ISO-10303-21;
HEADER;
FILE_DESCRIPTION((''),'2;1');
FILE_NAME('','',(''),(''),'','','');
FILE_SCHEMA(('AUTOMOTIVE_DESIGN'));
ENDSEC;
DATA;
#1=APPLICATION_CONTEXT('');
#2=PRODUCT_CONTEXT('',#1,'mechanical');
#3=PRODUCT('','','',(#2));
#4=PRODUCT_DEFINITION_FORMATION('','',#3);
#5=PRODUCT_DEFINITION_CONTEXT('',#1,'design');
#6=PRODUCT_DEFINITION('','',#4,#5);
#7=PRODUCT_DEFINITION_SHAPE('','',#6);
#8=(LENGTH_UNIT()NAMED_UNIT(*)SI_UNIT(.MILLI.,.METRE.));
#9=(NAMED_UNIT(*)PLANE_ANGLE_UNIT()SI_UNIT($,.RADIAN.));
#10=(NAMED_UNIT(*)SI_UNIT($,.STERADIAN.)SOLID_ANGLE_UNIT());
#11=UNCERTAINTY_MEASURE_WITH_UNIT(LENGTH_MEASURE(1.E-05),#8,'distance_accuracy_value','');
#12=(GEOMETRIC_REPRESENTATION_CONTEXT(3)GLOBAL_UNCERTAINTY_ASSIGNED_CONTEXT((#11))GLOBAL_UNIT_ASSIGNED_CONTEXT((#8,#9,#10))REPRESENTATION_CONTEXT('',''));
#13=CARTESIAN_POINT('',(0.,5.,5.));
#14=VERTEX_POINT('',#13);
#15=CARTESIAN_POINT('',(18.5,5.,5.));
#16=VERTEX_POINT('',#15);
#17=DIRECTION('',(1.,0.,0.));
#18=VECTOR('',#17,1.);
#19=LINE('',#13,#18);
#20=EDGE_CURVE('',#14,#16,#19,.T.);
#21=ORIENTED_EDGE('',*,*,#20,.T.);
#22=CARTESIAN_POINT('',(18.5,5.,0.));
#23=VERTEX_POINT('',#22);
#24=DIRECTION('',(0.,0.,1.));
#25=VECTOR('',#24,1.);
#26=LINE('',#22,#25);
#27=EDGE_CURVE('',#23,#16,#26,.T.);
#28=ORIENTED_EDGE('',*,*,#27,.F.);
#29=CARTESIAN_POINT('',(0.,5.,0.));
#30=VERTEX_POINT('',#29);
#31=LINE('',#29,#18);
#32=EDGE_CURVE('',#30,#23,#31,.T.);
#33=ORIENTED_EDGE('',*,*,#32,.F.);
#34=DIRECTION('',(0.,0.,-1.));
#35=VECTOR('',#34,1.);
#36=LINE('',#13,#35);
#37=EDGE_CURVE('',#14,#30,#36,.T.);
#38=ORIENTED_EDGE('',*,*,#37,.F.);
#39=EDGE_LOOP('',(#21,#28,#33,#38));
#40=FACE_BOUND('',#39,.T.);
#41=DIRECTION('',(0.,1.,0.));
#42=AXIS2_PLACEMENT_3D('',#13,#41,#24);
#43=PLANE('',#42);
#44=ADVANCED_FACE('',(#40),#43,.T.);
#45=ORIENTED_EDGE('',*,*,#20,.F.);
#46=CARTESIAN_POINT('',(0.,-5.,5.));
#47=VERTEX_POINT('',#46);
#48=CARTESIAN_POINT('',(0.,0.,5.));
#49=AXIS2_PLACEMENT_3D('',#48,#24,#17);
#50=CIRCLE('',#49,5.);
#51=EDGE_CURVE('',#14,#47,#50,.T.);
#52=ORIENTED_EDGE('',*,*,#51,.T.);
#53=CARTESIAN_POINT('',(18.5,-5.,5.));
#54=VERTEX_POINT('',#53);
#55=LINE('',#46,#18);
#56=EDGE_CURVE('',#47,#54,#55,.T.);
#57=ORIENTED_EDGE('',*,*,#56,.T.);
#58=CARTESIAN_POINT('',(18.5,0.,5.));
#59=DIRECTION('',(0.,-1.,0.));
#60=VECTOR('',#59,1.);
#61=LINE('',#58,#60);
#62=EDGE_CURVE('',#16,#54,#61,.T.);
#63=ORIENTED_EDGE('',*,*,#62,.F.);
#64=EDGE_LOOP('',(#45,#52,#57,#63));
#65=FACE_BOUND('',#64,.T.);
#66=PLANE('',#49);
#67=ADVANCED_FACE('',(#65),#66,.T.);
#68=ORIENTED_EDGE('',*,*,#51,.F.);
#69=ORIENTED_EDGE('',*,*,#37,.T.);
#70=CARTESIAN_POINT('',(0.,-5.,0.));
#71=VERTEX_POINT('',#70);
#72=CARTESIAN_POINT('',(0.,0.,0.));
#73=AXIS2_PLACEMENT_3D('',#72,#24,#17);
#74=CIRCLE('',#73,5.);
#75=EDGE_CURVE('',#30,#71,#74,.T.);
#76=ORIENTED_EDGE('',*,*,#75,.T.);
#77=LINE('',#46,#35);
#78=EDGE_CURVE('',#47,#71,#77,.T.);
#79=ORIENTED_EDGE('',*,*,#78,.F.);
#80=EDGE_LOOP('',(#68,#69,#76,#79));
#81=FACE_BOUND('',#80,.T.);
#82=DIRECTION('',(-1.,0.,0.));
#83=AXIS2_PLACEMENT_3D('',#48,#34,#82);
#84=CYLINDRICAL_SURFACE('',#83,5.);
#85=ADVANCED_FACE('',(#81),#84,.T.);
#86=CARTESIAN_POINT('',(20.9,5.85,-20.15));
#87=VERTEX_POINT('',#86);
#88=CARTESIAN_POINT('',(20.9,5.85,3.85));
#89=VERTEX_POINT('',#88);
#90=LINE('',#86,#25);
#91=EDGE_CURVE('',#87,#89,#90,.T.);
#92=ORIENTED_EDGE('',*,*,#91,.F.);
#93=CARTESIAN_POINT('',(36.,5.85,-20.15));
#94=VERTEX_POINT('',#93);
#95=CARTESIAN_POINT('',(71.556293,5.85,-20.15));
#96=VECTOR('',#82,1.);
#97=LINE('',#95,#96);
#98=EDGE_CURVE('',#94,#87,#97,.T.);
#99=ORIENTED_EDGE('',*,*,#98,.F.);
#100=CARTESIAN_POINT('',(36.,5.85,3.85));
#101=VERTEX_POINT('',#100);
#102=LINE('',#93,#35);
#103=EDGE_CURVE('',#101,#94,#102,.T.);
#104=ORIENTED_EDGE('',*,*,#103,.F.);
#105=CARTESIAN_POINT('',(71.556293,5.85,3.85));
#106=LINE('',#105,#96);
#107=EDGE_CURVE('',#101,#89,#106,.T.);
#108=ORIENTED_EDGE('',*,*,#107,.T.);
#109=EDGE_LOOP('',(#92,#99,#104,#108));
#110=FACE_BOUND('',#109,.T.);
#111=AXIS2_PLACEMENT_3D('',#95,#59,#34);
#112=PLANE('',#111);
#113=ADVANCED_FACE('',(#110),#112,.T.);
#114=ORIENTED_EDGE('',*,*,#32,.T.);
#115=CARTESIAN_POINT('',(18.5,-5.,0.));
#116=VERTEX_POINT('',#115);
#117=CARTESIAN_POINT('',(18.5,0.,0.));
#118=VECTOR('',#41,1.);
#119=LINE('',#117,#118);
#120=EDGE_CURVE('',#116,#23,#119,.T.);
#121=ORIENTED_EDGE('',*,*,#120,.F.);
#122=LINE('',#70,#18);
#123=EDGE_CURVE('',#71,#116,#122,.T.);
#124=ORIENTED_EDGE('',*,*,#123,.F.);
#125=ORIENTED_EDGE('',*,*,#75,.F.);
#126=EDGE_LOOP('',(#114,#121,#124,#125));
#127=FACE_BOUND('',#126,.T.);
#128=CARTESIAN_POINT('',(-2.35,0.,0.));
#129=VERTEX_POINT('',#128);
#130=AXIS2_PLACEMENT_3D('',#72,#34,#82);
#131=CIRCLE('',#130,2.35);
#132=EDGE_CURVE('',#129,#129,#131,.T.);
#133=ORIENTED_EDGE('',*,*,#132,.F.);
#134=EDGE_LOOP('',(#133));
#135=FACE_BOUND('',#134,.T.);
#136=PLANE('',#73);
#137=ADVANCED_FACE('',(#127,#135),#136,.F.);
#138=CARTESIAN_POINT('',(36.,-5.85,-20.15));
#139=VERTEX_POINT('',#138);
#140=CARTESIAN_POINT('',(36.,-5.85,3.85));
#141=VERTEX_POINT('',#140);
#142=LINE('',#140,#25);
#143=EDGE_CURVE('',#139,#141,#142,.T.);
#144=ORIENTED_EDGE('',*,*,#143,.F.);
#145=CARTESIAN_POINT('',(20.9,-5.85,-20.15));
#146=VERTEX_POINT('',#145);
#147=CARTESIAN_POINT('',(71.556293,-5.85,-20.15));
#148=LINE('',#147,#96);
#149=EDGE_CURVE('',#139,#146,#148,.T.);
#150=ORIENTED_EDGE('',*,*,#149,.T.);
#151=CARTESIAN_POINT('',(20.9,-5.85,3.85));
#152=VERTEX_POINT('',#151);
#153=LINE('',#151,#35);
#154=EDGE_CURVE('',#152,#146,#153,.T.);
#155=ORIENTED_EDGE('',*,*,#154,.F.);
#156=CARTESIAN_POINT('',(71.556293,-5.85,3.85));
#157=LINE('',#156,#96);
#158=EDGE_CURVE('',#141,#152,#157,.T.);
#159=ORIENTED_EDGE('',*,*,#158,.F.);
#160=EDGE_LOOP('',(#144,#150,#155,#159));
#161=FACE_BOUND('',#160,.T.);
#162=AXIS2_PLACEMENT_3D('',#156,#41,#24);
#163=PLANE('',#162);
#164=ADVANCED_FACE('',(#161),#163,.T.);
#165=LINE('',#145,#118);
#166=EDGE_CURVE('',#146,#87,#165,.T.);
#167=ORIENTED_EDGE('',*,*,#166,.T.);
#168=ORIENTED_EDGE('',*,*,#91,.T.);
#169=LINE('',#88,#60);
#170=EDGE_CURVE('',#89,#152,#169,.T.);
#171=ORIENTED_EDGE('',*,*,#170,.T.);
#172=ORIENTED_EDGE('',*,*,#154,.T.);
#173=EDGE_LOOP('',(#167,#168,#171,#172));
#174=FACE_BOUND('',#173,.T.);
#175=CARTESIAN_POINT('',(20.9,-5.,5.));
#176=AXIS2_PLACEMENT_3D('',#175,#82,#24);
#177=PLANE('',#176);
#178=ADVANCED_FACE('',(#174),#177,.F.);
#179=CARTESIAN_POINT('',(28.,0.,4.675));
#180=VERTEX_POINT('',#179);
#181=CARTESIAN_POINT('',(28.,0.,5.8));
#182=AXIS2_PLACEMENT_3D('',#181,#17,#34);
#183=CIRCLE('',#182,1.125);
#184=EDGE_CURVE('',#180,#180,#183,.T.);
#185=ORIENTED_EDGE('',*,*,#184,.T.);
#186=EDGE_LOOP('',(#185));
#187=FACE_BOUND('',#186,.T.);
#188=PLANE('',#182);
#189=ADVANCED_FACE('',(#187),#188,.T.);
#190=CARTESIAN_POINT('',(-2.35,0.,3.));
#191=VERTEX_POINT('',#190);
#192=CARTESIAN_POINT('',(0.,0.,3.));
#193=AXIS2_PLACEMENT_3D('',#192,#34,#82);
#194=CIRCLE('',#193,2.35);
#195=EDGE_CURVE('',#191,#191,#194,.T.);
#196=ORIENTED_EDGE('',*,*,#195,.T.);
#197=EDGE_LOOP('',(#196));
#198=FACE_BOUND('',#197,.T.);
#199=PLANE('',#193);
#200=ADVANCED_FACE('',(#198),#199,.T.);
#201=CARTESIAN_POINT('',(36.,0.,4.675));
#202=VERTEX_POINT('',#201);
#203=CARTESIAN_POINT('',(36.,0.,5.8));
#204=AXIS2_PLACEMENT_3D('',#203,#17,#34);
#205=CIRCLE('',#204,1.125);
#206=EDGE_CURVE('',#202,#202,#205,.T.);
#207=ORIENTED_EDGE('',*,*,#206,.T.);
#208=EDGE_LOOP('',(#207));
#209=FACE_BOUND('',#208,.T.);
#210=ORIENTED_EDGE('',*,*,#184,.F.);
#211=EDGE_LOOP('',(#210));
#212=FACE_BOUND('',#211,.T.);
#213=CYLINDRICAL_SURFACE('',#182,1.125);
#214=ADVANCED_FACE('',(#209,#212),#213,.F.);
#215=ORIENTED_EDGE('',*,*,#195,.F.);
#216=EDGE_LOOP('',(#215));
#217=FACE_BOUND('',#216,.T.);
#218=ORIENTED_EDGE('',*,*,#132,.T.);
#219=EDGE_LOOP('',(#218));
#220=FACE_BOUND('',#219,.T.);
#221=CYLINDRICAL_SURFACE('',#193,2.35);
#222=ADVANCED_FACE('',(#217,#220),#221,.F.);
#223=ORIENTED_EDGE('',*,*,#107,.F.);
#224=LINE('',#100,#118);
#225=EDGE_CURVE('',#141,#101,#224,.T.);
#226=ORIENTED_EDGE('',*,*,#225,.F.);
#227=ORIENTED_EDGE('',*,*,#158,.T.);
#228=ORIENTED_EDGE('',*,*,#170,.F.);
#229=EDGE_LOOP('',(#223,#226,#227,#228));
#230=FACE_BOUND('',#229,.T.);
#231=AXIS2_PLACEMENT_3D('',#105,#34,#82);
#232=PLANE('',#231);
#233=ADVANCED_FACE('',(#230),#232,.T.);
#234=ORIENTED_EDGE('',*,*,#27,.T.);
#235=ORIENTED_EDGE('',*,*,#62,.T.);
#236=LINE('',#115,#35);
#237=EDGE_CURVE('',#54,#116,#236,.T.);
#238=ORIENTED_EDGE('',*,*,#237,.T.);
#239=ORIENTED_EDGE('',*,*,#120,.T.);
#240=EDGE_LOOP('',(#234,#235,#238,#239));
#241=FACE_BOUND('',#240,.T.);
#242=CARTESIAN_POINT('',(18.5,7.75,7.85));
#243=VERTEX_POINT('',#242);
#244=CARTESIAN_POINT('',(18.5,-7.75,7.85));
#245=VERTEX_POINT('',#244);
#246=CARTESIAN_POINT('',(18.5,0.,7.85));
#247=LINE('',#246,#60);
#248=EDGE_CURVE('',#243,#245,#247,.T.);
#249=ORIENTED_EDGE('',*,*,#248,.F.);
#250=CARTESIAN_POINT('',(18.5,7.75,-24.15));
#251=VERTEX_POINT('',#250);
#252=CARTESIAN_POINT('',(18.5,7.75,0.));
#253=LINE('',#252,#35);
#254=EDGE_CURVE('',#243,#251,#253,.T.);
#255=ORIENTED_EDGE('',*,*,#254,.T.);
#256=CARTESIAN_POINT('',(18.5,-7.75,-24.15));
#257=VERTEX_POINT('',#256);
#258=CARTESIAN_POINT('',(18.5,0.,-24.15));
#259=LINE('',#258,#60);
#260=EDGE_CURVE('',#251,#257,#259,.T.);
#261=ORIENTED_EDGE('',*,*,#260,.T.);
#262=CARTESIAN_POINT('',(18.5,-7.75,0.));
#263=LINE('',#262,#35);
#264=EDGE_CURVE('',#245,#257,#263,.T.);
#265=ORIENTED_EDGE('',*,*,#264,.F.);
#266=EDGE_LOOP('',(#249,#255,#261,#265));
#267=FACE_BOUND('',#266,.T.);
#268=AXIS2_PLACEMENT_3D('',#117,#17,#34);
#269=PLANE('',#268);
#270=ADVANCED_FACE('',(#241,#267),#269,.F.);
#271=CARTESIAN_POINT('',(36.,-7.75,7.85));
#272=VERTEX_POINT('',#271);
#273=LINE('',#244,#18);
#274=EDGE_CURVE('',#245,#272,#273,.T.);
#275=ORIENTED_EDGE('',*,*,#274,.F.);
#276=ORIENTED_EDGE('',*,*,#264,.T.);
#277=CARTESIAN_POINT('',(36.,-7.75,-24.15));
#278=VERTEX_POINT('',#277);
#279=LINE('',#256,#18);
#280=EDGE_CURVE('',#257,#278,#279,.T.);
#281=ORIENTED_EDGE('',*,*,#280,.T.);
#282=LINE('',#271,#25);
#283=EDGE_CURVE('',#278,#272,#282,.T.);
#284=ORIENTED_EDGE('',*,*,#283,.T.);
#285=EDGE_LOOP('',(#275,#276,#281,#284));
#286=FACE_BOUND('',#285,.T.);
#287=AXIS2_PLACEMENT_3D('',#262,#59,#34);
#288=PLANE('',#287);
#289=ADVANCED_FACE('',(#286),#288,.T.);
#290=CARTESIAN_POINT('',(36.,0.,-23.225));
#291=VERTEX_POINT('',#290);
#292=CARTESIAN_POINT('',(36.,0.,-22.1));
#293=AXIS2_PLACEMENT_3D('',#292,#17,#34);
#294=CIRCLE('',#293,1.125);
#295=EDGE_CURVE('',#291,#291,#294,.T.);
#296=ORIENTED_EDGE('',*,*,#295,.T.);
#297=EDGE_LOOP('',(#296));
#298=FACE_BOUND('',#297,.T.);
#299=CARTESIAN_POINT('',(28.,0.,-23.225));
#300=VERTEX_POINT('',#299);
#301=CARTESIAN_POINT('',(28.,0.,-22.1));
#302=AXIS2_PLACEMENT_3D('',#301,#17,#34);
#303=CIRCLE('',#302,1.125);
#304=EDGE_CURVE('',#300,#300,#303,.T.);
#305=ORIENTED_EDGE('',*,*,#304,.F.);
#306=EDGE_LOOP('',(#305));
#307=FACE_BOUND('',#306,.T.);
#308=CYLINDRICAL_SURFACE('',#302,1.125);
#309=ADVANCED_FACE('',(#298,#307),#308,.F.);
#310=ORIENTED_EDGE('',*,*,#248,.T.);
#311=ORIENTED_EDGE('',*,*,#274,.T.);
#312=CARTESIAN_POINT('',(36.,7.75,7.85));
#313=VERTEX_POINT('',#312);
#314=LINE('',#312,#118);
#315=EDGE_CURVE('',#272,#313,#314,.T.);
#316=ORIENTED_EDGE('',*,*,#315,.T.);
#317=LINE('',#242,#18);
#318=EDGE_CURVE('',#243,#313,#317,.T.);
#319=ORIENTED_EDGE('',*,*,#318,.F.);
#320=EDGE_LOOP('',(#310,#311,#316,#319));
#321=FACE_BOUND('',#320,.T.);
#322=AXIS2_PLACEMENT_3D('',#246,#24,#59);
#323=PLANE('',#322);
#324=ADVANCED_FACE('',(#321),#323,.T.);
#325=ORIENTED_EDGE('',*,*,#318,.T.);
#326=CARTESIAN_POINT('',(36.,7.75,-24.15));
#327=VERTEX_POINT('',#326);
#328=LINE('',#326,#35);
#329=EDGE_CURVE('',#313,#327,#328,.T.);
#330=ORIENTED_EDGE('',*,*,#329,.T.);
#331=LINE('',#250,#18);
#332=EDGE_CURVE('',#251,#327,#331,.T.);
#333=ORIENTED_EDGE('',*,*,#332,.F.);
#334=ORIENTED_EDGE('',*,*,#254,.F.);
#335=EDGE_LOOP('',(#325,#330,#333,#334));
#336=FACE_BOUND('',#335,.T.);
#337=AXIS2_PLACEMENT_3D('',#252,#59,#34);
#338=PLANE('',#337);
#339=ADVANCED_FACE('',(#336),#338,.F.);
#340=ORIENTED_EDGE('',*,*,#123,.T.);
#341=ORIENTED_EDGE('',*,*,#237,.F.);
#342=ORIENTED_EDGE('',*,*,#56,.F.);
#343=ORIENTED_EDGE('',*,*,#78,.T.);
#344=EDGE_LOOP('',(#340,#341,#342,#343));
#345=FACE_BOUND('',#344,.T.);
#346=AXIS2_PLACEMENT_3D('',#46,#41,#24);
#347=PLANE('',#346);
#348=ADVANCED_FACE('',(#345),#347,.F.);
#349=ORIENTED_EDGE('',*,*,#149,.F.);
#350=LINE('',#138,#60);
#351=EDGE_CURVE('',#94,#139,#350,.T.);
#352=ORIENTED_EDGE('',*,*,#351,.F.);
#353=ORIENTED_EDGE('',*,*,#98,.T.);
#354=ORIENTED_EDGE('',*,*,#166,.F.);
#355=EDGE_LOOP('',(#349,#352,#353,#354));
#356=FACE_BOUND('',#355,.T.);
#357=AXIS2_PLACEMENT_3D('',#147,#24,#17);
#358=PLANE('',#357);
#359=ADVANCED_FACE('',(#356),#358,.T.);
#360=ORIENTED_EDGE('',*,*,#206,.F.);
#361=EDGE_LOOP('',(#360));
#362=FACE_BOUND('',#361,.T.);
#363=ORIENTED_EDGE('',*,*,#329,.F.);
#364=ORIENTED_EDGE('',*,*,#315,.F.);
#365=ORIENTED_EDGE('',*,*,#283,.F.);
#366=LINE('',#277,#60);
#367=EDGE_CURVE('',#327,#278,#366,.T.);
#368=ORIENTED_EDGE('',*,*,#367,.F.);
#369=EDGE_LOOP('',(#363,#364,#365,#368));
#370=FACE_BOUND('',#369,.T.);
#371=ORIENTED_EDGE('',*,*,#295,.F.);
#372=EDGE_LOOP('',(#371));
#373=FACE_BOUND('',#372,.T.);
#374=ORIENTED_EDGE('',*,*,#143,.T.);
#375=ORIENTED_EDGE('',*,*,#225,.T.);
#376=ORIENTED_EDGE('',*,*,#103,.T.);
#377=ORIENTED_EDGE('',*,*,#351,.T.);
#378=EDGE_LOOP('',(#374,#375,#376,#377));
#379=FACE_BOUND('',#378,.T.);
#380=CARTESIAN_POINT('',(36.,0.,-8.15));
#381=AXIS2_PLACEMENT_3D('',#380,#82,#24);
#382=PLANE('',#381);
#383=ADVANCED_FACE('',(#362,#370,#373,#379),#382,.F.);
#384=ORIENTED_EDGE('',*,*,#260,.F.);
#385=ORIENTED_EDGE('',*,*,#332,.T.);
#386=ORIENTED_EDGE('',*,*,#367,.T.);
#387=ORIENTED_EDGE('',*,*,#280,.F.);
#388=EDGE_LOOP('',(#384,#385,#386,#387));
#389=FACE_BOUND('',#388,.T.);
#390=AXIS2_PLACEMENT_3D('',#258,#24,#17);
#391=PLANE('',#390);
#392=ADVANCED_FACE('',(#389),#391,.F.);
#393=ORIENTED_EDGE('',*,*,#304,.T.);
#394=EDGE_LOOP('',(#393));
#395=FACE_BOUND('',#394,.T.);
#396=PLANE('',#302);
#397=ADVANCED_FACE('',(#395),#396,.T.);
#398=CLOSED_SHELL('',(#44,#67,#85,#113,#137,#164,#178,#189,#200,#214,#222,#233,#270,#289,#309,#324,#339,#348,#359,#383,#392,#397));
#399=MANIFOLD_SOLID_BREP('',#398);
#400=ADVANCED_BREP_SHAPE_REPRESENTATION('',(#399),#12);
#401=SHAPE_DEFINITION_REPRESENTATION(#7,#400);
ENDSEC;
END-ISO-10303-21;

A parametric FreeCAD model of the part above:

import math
import FreeCAD as App
import Part
import Sketcher
from FreeCAD import Vector


def add_polygon(sketch, points):
    """Adds a closed chain of lines whose ends are joined by coincident constraints."""
    first, n = sketch.GeometryCount, len(points)
    for a, b in zip(points, points[1:] + points[:1]):
        sketch.addGeometry(Part.LineSegment(App.Vector(*a, 0), App.Vector(*b, 0)), False)
    for i in range(n):
        sketch.addConstraint(Sketcher.Constraint("Coincident", first + i, 2, first + (i + 1) % n, 1))

doc = App.newDocument("Part")
body = doc.addObject("PartDesign::Body", "Body")

# Sketch on XY plane
sketch1 = body.newObject("Sketcher::SketchObject", "Sketch")
sketch1.AttachmentSupport = (doc.getObject("XY_Plane"), [""])
sketch1.MapMode = "FlatFace"
sketch1.addGeometry([
    Part.LineSegment(Vector(21, 5, 0), Vector(0, 5, 0)),
    Part.ArcOfCircle(Part.Circle(Vector(0, 0, 0), Vector(0, 0, 1), 5), math.radians(90), math.radians(270)),
    Part.LineSegment(Vector(0, -5, 0), Vector(21, -5, 0)),
    Part.LineSegment(Vector(21, -5, 0), Vector(21, 5, 0)),
], False)
sketch1.addConstraint([
    Sketcher.Constraint("Tangent", 0, 2, 1, 1),
    Sketcher.Constraint("Tangent", 1, 2, 2, 1),
    Sketcher.Constraint("Coincident", 2, 2, 3, 1),
    Sketcher.Constraint("Coincident", 3, 2, 0, 1),
    Sketcher.Constraint("Horizontal", 0),
    Sketcher.Constraint("Horizontal", 2),
    Sketcher.Constraint("Vertical", 3),
    Sketcher.Constraint("Coincident", 1, 3, -1, 1),
    Sketcher.Constraint("Radius", 1, 5.0),
    Sketcher.Constraint("DistanceX", 0, 2, 0, 1, 20.9),
])
pad1 = body.newObject("PartDesign::Pad", "Pad")
pad1.Profile = sketch1
pad1.Length = 5

# Sketch on XY plane
sketch2 = body.newObject("Sketcher::SketchObject", "Sketch001")
sketch2.AttachmentSupport = (doc.getObject("XY_Plane"), [""])
sketch2.MapMode = "FlatFace"
sketch2.addGeometry(Part.Circle(Vector(0, 0, 0), Vector(0, 0, 1), 2.4), False)
sketch2.addConstraint([
    Sketcher.Constraint("Coincident", 0, 3, -1, 1),
    Sketcher.Constraint("Diameter", 0, 4.7),
])
pocket1 = body.newObject("PartDesign::Pocket", "Pocket")
pocket1.Profile = sketch2
pocket1.Length = 3
pocket1.Reversed = True

# Sketch on YZ plane
sketch3 = body.newObject("Sketcher::SketchObject", "Sketch002")
sketch3.AttachmentSupport = (doc.getObject("YZ_Plane"), [""])
sketch3.MapMode = "FlatFace"
sketch3.AttachmentOffset = App.Placement(Vector(0, 0, 20.9), App.Rotation())
add_polygon(sketch3, [(8, 8), (-8, 8), (-8, -24), (8, -24)])  # lines 0-3
add_polygon(sketch3, [(-5, 0), (-5, 5), (5, 5), (5, 0)])  # lines 4-7
sketch3.addConstraint([
    Sketcher.Constraint("Horizontal", 0),
    Sketcher.Constraint("Vertical", 1),
    Sketcher.Constraint("Horizontal", 2),
    Sketcher.Constraint("Vertical", 3),
    Sketcher.Constraint("Vertical", 4),
    Sketcher.Constraint("Horizontal", 5),
    Sketcher.Constraint("Vertical", 6),
    Sketcher.Constraint("Horizontal", 7),
    Sketcher.Constraint("Symmetric", 6, 2, 7, 2, -1, 1),
    Sketcher.Constraint("DistanceX", 5, 1, 5, 2, 10.0),
    Sketcher.Constraint("DistanceY", 1, 2, 1, 1, 32.0),
    Sketcher.Constraint("DistanceY", 4, 1, 4, 2, 5.0),
    Sketcher.Constraint("DistanceX", 0, 2, 0, 1, 15.5),
    Sketcher.Constraint("DistanceX", 0, 2, -1, 1, 7.75),
    Sketcher.Constraint("DistanceY", -1, 1, 0, 2, 7.85),
])
pad2 = body.newObject("PartDesign::Pad", "Pad001")
pad2.Profile = sketch3
pad2.Length = 2.4
pad2.Reversed = True

# Sketch on YZ plane
sketch4 = body.newObject("Sketcher::SketchObject", "Sketch003")
sketch4.AttachmentSupport = (doc.getObject("YZ_Plane"), [""])
sketch4.MapMode = "FlatFace"
sketch4.AttachmentOffset = App.Placement(Vector(0, 0, 20.9), App.Rotation())
add_polygon(sketch4, [(8, 8), (-8, 8), (-8, -24), (8, -24)])  # lines 0-3
add_polygon(sketch4, [(-6, -20), (-6, 4), (6, 4), (6, -20)])  # lines 4-7
sketch4.addConstraint([
    Sketcher.Constraint("Horizontal", 0),
    Sketcher.Constraint("Vertical", 1),
    Sketcher.Constraint("Horizontal", 2),
    Sketcher.Constraint("Vertical", 3),
    Sketcher.Constraint("Vertical", 4),
    Sketcher.Constraint("Horizontal", 5),
    Sketcher.Constraint("Vertical", 6),
    Sketcher.Constraint("Horizontal", 7),
    Sketcher.Constraint("DistanceY", 1, 2, 1, 1, 32.0),
    Sketcher.Constraint("DistanceY", 4, 1, 4, 2, 24.0),
    Sketcher.Constraint("DistanceX", 0, 2, 0, 1, 15.5),
    Sketcher.Constraint("DistanceX", 5, 1, 5, 2, 11.7),
    Sketcher.Constraint("DistanceY", 4, 2, 0, 2, 4.0),
    Sketcher.Constraint("DistanceX", 0, 2, 4, 2, 1.9),
    Sketcher.Constraint("DistanceX", 0, 2, -1, 1, 7.75),
    Sketcher.Constraint("DistanceY", -1, 1, 0, 2, 7.85),
])
pad3 = body.newObject("PartDesign::Pad", "Pad002")
pad3.Profile = sketch4
pad3.Length = 15.1

# Sketch on YZ plane
sketch5 = body.newObject("Sketcher::SketchObject", "Sketch004")
sketch5.AttachmentSupport = (doc.getObject("YZ_Plane"), [""])
sketch5.MapMode = "FlatFace"
sketch5.AttachmentOffset = App.Placement(Vector(0, 0, 36), App.Rotation())
sketch5.addGeometry([
    Part.Circle(Vector(0, 5.8, 0), Vector(0, 0, 1), 1.1),
    Part.Circle(Vector(0, -22.1, 0), Vector(0, 0, 1), 1.1),
], False)
sketch5.addConstraint([
    Sketcher.Constraint("Equal", 0, 1),
    Sketcher.Constraint("PointOnObject", 0, 3, -2),
    Sketcher.Constraint("PointOnObject", 1, 3, -2),
    Sketcher.Constraint("Diameter", 0, 2.25),
    Sketcher.Constraint("DistanceY", -1, 1, 0, 3, 5.8),
    Sketcher.Constraint("DistanceY", 1, 3, -1, 1, 22.1),
])
pocket2 = body.newObject("PartDesign::Pocket", "Pocket001")
pocket2.Profile = sketch5
pocket2.Length = 8

doc.recompute()
